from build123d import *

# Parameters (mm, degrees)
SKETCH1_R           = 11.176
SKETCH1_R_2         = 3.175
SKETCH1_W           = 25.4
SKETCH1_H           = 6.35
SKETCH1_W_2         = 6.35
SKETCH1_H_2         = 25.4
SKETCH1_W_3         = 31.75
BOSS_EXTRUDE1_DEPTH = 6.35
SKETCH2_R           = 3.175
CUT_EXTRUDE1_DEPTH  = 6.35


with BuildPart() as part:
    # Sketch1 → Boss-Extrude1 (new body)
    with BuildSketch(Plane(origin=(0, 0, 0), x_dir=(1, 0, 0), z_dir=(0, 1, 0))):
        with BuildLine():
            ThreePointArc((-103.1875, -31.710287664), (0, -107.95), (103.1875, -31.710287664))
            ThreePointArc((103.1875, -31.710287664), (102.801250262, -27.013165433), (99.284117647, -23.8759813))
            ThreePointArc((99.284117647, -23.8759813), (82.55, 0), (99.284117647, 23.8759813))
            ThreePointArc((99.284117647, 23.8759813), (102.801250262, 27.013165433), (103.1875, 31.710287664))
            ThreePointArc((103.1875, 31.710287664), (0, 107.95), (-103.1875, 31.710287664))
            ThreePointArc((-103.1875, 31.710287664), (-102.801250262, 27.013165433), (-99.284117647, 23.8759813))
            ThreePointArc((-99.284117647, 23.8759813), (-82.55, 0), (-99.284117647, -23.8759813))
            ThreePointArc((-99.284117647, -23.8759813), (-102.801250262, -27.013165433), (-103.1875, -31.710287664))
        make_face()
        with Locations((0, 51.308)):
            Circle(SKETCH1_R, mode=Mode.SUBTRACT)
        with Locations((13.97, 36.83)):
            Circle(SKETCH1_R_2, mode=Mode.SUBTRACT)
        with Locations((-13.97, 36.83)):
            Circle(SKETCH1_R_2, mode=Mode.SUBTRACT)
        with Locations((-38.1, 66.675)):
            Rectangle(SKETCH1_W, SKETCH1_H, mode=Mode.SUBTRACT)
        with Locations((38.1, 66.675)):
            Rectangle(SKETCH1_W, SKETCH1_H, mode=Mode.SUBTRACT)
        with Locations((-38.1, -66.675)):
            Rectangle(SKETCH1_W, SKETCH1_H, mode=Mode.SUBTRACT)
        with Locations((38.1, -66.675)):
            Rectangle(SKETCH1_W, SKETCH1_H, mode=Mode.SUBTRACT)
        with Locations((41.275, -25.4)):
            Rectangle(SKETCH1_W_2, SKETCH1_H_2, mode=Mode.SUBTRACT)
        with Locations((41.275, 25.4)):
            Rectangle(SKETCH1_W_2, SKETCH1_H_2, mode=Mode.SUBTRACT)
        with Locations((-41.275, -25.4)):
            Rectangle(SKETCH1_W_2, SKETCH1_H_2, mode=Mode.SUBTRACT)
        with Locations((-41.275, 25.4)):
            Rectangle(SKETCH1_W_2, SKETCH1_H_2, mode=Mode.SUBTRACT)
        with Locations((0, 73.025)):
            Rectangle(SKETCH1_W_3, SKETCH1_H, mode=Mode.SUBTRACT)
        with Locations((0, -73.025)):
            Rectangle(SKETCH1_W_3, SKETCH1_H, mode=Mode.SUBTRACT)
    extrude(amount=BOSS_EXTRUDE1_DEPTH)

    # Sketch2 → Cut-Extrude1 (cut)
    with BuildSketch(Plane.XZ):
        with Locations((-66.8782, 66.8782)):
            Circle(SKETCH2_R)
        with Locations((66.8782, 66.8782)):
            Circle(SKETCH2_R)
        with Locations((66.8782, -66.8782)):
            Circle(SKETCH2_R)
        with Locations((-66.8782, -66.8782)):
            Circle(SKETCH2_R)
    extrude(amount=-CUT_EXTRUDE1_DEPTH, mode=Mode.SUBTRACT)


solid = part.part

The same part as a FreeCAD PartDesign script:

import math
import FreeCAD as App
import Part
import Sketcher

V = App.Vector
Q = App.Units.Quantity


def add_polygon(sketch, points):
    """Adds a closed chain of lines whose ends are joined by coincident constraints."""
    first, n = sketch.GeometryCount, len(points)
    for a, b in zip(points, points[1:] + points[:1]):
        sketch.addGeometry(Part.LineSegment(App.Vector(*a, 0), App.Vector(*b, 0)), False)
    for i in range(n):
        sketch.addConstraint(Sketcher.Constraint("Coincident", first + i, 2, first + (i + 1) % n, 1))

doc = App.newDocument("Part")
body = doc.addObject("PartDesign::Body", "Body")

sketch1 = body.newObject("Sketcher::SketchObject", "Sketch")
sketch1.AttachmentSupport = (doc.getObject("XZ_Plane"), [""])
sketch1.MapMode = "FlatFace"
sketch1.addGeometry(Part.ArcOfCircle(Part.Circle(V(0, 0, 0), V(0, 0, 1), 107.95), math.radians(17.082583), math.radians(162.917417)), False)
sketch1.addGeometry(Part.ArcOfCircle(Part.Circle(V(97.117647, 29.844977, 0), V(0, 0, 1), 6.35), math.radians(-70.051433), math.radians(17.082583)), False)
sketch1.addGeometry(Part.ArcOfCircle(Part.Circle(V(107.95, 0, 0), V(0, 0, 1), 25.4), math.radians(109.948567), math.radians(250.051433)), False)
sketch1.addGeometry(Part.ArcOfCircle(Part.Circle(V(97.117647, -29.844977, 0), V(0, 0, 1), 6.35), math.radians(-17.082583), math.radians(70.051433)), False)
sketch1.addGeometry(Part.ArcOfCircle(Part.Circle(V(0, 0, 0), V(0, 0, 1), 107.95), math.radians(-162.917417), math.radians(-17.082583)), False)
sketch1.addGeometry(Part.ArcOfCircle(Part.Circle(V(-97.117647, -29.844977, 0), V(0, 0, 1), 6.35), math.radians(109.948567), math.radians(197.082583)), False)
sketch1.addGeometry(Part.ArcOfCircle(Part.Circle(V(-107.95, 0, 0), V(0, 0, 1), 25.4), math.radians(-70.051433), math.radians(70.051433)), False)
sketch1.addGeometry(Part.ArcOfCircle(Part.Circle(V(-97.117647, 29.844977, 0), V(0, 0, 1), 6.35), math.radians(162.917417), math.radians(250.051433)), False)
add_polygon(sketch1, [(-25.4, 69.85), (-50.8, 69.85), (-50.8, 63.5), (-25.4, 63.5)])
add_polygon(sketch1, [(15.875, 76.2), (-15.875, 76.2), (-15.875, 69.85), (15.875, 69.85)])
add_polygon(sketch1, [(-38.1, 38.1), (-44.45, 38.1), (-44.45, 12.7), (-38.1, 12.7)])
add_polygon(sketch1, [(50.8, 69.85), (25.4, 69.85), (25.4, 63.5), (50.8, 63.5)])
add_polygon(sketch1, [(44.45, 38.1), (38.1, 38.1), (38.1, 12.7), (44.45, 12.7)])
add_polygon(sketch1, [(-38.1, -12.7), (-44.45, -12.7), (-44.45, -38.1), (-38.1, -38.1)])
sketch1.addGeometry(Part.Circle(V(-13.97, -36.83, 0), V(0, 0, 1), 3.175), False)
add_polygon(sketch1, [(-25.4, -63.5), (-50.8, -63.5), (-50.8, -69.85), (-25.4, -69.85)])
sketch1.addGeometry(Part.Circle(V(0, -51.308, 0), V(0, 0, 1), 11.176), False)
add_polygon(sketch1, [(15.875, -69.85), (-15.875, -69.85), (-15.875, -76.2), (15.875, -76.2)])
sketch1.addGeometry(Part.Circle(V(13.97, -36.83, 0), V(0, 0, 1), 3.175), False)
add_polygon(sketch1, [(44.45, -12.7), (38.1, -12.7), (38.1, -38.1), (44.45, -38.1)])
add_polygon(sketch1, [(50.8, -63.5), (25.4, -63.5), (25.4, -69.85), (50.8, -69.85)])
sketch1.addConstraint([
    Sketcher.Constraint("Tangent", 0, 1, 1, 2),
    Sketcher.Constraint("Tangent", 1, 1, 2, 1),
    Sketcher.Constraint("Tangent", 2, 2, 3, 2),
    Sketcher.Constraint("Tangent", 3, 1, 4, 2),
    Sketcher.Constraint("Tangent", 4, 1, 5, 2),
    Sketcher.Constraint("Tangent", 5, 1, 6, 1),
    Sketcher.Constraint("Tangent", 6, 2, 7, 2),
    Sketcher.Constraint("Tangent", 7, 1, 0, 2),
    Sketcher.Constraint("Horizontal", 8),
    Sketcher.Constraint("Vertical", 9),
    Sketcher.Constraint("Horizontal", 10),
    Sketcher.Constraint("Vertical", 11),
    Sketcher.Constraint("Horizontal", 12),
    Sketcher.Constraint("Vertical", 13),
    Sketcher.Constraint("Horizontal", 14),
    Sketcher.Constraint("Vertical", 15),
    Sketcher.Constraint("Horizontal", 16),
    Sketcher.Constraint("Vertical", 17),
    Sketcher.Constraint("Horizontal", 18),
    Sketcher.Constraint("Vertical", 19),
    Sketcher.Constraint("Horizontal", 20),
    Sketcher.Constraint("Vertical", 21),
    Sketcher.Constraint("Horizontal", 22),
    Sketcher.Constraint("Vertical", 23),
    Sketcher.Constraint("Horizontal", 24),
    Sketcher.Constraint("Vertical", 25),
    Sketcher.Constraint("Horizontal", 26),
    Sketcher.Constraint("Vertical", 27),
    Sketcher.Constraint("Horizontal", 28),
    Sketcher.Constraint("Vertical", 29),
    Sketcher.Constraint("Horizontal", 30),
    Sketcher.Constraint("Vertical", 31),
    Sketcher.Constraint("Horizontal", 33),
    Sketcher.Constraint("Vertical", 34),
    Sketcher.Constraint("Horizontal", 35),
    Sketcher.Constraint("Vertical", 36),
    Sketcher.Constraint("Horizontal", 38),
    Sketcher.Constraint("Vertical", 39),
    Sketcher.Constraint("Horizontal", 40),
    Sketcher.Constraint("Vertical", 41),
    Sketcher.Constraint("Horizontal", 43),
    Sketcher.Constraint("Vertical", 44),
    Sketcher.Constraint("Horizontal", 45),
    Sketcher.Constraint("Vertical", 46),
    Sketcher.Constraint("Horizontal", 47),
    Sketcher.Constraint("Vertical", 48),
    Sketcher.Constraint("Horizontal", 49),
    Sketcher.Constraint("Vertical", 50),
    Sketcher.Constraint("Coincident", 0, 3, -1, 1),
    Sketcher.Constraint("Coincident", 4, 3, -1, 1),
    Sketcher.Constraint("Equal", 1, 3),
    Sketcher.Constraint("Equal", 0, 4),
    Sketcher.Constraint("Equal", 3, 5),
    Sketcher.Constraint("Equal", 2, 6),
    Sketcher.Constraint("Equal", 5, 7),
    Sketcher.Constraint("Equal", 32, 42),
    Sketcher.Constraint("Symmetric", 2, 3, 6, 3, -1, 1),
    Sketcher.Constraint("Symmetric", 26, 2, 28, 2, -1, 1),
    Sketcher.Constraint("Symmetric", 24, 2, 30, 2, -1, 1),
    Sketcher.Constraint("Symmetric", 22, 2, 33, 2, -1, 1),
    Sketcher.Constraint("Symmetric", 20, 2, 35, 2, -1, 1),
    Sketcher.Constraint("Symmetric", 14, 2, 38, 2, -1, 1),
    Sketcher.Constraint("Symmetric", 12, 2, 40, 2, -1, 1),
    Sketcher.Constraint("Symmetric", 18, 2, 43, 2, -1, 1),
    Sketcher.Constraint("Symmetric", 16, 2, 45, 2, -1, 1),
    Sketcher.Constraint("Symmetric", 10, 2, 47, 2, -1, 1),
    Sketcher.Constraint("Symmetric", 8, 2, 49, 2, -1, 1),
    Sketcher.Constraint("Symmetric", 32, 3, 42, 3, -2),
    Sketcher.Constraint("Symmetric", 11, 2, 20, 2, -2),
    Sketcher.Constraint("Symmetric", 9, 2, 22, 2, -2),
    Sketcher.Constraint("Symmetric", 19, 2, 24, 2, -2),
    Sketcher.Constraint("Symmetric", 17, 2, 26, 2, -2),
    Sketcher.Constraint("PointOnObject", 2, 3, -1),
    Sketcher.Constraint("PointOnObject", 37, 3, -2),
    Sketcher.Constraint("Horizontal", 11, 2, 13, 2),
    Sketcher.Constraint("Vertical", 13, 2, 38, 2),
    Sketcher.Constraint("Equal", 45, 9),
    Sketcher.Constraint("Equal", 11, 13),
    Sketcher.Constraint("Equal", 49, 17),
    Sketcher.Constraint("Radius", 2, Q("1 in")),
    Sketcher.Constraint("Diameter", 32, Q("0.25 in")),
    Sketcher.Constraint("Diameter", 37, Q("0.88 in")),
    Sketcher.Constraint("DistanceX", 8, 2, 8, 1, Q("1 in")),
    Sketcher.Constraint("Radius", 0, Q("4.25 in")),
    Sketcher.Constraint("Radius", 1, Q("0.25 in")),
    Sketcher.Constraint("DistanceX", 8, 2, -1, 1, Q("2 in")),
    Sketcher.Constraint("DistanceY", -1, 1, 12, 2, Q("3 in")),
    Sketcher.Constraint("DistanceY", 16, 2, 9, 2, Q("1 in")),
    Sketcher.Constraint("DistanceY", 28, 2, 17, 2, Q("1 in")),
    Sketcher.Constraint("DistanceX", 12, 2, 12, 1, Q("1.25 in")),
    Sketcher.Constraint("DistanceX", 18, 2, -1, 1, Q("1.5 in")),
    Sketcher.Constraint("DistanceX", 6, 3, 32, 3, Q("3.7 in")),
    Sketcher.Constraint("DistanceX", 32, 3, 42, 3, Q("1.1 in")),
    Sketcher.Constraint("DistanceY", 34, 2, 32, 3, Q("1.3 in")),
    Sketcher.Constraint("DistanceY", 37, 3, -1, 1, Q("2.02 in")),
])
pad1 = body.newObject("PartDesign::Pad", "Pad")
pad1.Profile = sketch1
pad1.Length = Q("0.25 in")
pad1.Reversed = True

sketch2 = body.newObject("Sketcher::SketchObject", "Sketch001")
sketch2.AttachmentSupport = (doc.getObject("XZ_Plane"), [""])
sketch2.MapMode = "FlatFace"
sketch2.addGeometry([
    Part.Circle(V(-66.8782, 66.8782, 0), V(0, 0, 1), 3.175),
    Part.Circle(V(66.8782, 66.8782, 0), V(0, 0, 1), 3.175),
    Part.Circle(V(66.8782, -66.8782, 0), V(0, 0, 1), 3.175),
    Part.Circle(V(-66.8782, -66.8782, 0), V(0, 0, 1), 3.175),
], False)
sketch2.addConstraint([
    Sketcher.Constraint("Equal", 0, 1),
    Sketcher.Constraint("Equal", 1, 2),
    Sketcher.Constraint("Equal", 2, 3),
    Sketcher.Constraint("Symmetric", 0, 3, 2, 3, -1, 1),
    Sketcher.Constraint("Symmetric", 1, 3, 3, 3, -1, 1),
    Sketcher.Constraint("Symmetric", 0, 3, 1, 3, -2),
    Sketcher.Constraint("Diameter", 0, Q("0.25 in")),
    Sketcher.Constraint("DistanceX", 0, 3, -1, 1, Q("2.633 in")),
    Sketcher.Constraint("DistanceY", -1, 1, 0, 3, Q("2.633 in")),
])
pocket1 = body.newObject("PartDesign::Pocket", "Pocket")
pocket1.Profile = sketch2
pocket1.Length = Q("0.25 in")

doc.recompute()
